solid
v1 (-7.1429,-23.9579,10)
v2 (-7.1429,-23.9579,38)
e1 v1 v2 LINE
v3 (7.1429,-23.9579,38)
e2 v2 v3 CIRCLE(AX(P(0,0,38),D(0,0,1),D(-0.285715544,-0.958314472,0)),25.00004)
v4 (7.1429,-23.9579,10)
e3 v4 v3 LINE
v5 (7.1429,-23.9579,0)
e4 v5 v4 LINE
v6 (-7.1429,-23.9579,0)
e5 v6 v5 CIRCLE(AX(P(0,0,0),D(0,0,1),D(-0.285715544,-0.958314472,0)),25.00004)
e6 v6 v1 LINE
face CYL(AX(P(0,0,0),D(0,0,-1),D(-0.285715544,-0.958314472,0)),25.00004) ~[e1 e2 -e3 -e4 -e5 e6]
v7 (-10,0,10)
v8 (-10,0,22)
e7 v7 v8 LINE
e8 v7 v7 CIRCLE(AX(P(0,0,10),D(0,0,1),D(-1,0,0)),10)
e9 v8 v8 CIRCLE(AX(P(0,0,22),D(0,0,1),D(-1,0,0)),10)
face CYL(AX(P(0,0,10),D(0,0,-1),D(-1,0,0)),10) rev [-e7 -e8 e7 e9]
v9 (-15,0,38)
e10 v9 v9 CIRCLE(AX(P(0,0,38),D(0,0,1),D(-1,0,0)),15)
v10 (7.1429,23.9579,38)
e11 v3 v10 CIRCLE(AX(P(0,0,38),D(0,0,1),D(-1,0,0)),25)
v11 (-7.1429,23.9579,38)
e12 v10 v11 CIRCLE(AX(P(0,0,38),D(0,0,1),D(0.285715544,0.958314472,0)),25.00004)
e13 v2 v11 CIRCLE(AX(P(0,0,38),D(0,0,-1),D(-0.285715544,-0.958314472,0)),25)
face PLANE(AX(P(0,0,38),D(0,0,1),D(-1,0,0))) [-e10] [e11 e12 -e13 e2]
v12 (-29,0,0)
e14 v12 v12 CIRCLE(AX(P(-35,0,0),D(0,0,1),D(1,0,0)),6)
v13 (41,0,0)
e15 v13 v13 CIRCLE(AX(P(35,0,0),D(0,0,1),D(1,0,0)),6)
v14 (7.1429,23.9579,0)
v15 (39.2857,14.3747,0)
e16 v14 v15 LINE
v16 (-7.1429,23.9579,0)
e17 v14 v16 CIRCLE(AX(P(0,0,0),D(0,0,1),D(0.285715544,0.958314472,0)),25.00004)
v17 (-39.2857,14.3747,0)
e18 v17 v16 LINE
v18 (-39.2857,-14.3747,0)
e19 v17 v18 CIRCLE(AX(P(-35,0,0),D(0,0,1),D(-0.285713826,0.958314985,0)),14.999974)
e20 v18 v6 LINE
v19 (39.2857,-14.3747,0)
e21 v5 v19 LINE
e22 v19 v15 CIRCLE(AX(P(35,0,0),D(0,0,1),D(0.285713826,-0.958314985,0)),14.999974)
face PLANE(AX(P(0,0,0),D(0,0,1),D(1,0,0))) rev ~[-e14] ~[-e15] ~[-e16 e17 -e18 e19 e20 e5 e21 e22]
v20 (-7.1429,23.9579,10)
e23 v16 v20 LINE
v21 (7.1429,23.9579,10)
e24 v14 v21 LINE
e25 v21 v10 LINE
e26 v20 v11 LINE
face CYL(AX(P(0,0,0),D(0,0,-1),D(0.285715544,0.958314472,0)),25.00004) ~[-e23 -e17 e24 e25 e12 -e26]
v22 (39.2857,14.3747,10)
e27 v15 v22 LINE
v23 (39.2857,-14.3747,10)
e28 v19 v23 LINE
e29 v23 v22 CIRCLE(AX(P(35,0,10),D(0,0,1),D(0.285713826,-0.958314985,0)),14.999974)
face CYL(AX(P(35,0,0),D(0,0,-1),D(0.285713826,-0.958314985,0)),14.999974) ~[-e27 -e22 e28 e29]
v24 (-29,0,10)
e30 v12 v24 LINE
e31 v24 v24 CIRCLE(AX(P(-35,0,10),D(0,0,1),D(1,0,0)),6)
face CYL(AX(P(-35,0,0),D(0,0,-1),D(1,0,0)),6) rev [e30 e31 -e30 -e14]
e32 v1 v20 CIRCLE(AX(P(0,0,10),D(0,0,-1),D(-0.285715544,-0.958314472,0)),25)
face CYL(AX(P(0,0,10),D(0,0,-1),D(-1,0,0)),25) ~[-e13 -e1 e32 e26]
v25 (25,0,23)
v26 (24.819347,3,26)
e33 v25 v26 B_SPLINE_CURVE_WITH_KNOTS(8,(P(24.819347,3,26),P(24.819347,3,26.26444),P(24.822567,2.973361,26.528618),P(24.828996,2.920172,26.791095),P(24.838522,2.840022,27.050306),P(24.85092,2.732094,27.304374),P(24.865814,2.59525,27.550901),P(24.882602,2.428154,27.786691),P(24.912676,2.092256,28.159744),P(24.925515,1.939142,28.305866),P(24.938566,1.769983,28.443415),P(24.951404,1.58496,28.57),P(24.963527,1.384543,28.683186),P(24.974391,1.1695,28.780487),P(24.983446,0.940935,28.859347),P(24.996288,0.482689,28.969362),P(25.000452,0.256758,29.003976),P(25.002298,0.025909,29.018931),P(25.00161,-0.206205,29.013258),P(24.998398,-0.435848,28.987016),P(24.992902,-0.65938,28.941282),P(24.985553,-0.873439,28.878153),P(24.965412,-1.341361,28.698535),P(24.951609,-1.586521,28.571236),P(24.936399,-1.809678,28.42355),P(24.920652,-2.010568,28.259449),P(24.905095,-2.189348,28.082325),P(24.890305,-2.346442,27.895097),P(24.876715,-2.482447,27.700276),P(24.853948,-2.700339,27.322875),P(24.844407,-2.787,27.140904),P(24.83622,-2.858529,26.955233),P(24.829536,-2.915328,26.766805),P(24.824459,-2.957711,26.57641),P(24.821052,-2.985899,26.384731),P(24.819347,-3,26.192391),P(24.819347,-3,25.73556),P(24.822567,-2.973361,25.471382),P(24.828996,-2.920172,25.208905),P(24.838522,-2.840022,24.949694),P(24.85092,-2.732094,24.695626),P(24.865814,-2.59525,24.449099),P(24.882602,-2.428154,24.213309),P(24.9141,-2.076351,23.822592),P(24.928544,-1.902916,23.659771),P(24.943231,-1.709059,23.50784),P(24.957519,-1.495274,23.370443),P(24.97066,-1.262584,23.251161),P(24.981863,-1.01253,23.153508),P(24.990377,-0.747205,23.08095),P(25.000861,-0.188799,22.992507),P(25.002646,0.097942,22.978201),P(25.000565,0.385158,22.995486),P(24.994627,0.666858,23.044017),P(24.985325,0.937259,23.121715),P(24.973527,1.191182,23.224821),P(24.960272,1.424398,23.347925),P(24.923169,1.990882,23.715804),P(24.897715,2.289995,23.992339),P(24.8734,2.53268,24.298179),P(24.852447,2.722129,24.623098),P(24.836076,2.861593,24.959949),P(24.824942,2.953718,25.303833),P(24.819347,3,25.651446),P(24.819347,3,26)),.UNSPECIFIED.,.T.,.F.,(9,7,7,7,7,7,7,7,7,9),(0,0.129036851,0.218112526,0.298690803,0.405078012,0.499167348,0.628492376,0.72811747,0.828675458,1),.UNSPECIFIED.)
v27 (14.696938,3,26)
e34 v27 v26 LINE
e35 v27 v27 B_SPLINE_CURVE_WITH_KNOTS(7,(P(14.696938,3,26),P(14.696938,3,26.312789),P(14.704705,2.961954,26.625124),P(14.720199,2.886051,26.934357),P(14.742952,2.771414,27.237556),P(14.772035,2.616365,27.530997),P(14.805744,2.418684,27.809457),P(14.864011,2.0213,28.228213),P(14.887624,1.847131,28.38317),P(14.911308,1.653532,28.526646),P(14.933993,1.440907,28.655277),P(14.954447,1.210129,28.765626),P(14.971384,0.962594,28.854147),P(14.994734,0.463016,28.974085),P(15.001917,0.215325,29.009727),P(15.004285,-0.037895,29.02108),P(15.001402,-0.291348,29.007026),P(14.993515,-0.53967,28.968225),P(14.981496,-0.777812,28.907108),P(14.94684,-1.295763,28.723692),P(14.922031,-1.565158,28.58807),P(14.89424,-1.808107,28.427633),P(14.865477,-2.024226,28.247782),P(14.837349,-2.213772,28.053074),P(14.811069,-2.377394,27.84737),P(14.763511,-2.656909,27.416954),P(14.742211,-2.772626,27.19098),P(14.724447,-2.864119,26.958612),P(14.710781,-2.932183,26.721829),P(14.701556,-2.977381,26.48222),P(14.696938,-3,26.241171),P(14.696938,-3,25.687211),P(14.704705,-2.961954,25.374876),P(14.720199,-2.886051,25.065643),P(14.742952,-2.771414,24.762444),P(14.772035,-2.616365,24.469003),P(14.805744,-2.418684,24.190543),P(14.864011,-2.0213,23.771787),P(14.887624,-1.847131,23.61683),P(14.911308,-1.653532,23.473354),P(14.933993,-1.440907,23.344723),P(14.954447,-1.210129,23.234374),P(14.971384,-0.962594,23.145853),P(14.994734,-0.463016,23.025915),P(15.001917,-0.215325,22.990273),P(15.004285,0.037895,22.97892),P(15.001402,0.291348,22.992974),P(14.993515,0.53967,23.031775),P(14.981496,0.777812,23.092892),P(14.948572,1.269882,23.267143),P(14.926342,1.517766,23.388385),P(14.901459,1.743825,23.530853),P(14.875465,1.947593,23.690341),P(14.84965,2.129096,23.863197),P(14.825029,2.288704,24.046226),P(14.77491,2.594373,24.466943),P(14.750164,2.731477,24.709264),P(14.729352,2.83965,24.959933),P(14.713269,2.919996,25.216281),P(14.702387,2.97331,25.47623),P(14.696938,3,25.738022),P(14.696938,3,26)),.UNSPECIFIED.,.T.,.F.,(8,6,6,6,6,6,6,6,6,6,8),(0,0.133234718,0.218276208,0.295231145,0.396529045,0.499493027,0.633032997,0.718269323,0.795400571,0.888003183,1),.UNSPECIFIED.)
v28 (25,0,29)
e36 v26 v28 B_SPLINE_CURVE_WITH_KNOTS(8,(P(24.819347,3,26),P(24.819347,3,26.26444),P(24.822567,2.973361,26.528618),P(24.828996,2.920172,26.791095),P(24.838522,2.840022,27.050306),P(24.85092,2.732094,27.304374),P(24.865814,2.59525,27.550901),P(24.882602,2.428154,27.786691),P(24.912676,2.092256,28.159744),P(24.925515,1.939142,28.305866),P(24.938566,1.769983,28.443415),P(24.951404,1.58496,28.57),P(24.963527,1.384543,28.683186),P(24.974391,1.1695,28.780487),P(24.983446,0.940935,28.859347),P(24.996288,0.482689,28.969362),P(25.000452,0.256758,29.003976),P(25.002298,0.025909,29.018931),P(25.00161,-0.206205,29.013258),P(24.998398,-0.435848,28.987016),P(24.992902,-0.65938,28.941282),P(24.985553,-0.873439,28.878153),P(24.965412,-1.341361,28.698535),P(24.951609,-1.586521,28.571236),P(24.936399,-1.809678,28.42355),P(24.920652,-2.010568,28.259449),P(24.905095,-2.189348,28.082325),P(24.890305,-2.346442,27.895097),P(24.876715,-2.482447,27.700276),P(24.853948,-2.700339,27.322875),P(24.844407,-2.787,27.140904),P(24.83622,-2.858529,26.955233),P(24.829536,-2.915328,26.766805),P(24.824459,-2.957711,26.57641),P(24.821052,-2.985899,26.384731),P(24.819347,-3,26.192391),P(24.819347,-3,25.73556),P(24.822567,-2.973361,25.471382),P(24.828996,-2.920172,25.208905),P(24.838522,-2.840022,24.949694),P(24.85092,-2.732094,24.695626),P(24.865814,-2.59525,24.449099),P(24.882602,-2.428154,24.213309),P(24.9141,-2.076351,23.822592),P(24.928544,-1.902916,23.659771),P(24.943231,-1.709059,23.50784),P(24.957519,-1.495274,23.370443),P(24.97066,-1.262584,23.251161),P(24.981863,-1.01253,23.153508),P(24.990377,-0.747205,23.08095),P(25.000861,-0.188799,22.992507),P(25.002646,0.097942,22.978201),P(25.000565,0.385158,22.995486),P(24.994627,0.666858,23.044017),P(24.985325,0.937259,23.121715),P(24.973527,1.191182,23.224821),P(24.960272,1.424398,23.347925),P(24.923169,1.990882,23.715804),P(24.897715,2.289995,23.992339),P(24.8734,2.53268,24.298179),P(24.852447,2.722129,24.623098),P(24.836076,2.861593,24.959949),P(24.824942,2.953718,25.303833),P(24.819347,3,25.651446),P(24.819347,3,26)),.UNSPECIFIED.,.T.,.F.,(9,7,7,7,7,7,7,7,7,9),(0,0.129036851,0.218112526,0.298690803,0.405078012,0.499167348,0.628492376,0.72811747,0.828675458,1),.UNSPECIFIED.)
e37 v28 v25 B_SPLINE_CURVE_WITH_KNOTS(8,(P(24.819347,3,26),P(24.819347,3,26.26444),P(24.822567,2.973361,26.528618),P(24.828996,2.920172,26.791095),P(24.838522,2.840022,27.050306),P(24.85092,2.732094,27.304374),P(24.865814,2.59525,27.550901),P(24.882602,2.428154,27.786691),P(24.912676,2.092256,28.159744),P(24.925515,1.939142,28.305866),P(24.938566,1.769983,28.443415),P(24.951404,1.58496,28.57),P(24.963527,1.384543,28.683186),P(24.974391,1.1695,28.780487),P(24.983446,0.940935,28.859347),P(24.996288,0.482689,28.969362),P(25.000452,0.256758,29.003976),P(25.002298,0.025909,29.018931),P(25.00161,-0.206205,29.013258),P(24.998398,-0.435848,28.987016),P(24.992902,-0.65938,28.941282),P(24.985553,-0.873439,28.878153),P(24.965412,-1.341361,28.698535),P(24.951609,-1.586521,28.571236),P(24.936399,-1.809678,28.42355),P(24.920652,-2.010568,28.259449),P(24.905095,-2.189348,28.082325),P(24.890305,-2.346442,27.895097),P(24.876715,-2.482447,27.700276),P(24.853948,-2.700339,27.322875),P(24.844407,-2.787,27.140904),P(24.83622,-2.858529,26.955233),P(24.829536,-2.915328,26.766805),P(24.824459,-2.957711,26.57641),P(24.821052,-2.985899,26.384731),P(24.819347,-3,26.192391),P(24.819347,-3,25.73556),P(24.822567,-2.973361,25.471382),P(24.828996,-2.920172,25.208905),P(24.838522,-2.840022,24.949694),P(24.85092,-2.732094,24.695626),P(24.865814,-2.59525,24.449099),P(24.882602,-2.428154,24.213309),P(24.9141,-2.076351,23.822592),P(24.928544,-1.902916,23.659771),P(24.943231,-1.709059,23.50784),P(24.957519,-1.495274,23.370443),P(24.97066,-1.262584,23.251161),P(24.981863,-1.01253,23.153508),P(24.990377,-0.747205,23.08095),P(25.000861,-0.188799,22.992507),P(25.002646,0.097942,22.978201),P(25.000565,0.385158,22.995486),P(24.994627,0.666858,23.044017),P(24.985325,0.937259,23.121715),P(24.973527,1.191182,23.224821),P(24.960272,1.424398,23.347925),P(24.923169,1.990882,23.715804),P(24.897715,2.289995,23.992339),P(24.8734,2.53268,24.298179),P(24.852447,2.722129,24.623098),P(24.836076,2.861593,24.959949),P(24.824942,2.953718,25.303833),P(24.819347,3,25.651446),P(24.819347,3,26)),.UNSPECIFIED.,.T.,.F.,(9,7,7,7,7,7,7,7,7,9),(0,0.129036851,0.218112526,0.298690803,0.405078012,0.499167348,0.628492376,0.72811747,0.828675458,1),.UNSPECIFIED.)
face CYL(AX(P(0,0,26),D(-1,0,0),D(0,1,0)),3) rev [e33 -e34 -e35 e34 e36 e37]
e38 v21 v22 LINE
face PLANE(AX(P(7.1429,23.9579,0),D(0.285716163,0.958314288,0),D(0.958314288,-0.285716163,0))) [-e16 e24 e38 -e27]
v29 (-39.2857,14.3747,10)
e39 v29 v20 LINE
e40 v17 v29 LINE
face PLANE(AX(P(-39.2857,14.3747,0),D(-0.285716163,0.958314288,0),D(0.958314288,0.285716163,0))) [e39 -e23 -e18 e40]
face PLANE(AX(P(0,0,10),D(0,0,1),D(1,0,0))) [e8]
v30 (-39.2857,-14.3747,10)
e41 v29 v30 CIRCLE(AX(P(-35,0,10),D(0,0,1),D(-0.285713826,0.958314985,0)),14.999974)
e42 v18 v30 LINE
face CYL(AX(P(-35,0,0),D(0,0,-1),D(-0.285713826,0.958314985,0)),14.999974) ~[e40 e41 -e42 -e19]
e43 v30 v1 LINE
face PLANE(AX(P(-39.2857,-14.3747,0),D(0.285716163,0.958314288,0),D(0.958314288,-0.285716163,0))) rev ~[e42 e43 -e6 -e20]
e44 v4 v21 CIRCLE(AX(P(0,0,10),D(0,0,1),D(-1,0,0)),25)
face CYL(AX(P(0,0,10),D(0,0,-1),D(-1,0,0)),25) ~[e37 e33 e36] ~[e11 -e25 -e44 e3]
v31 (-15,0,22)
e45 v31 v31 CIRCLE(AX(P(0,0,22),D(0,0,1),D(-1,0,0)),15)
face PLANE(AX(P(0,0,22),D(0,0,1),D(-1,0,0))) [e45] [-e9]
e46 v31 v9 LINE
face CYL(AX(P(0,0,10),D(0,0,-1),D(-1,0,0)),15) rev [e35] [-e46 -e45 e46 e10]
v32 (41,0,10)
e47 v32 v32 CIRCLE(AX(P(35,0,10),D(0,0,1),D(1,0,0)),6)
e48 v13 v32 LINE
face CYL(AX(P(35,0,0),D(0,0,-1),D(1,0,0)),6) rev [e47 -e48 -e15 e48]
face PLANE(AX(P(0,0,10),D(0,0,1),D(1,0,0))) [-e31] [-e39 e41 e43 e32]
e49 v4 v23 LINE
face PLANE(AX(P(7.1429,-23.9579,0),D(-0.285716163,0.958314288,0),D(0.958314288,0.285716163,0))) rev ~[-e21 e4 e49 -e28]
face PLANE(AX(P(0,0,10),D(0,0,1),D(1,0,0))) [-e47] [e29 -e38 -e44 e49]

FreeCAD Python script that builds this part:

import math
import FreeCAD as App
import Part
import Sketcher
Q = App.Units.Quantity

doc = App.newDocument("Part")
params = doc.addObject("Spreadsheet::Sheet", "Params")
for row, (alias, value) in enumerate([
    ("sketch1_diameter", "12 mm"),
    ("sketch1_radius", "15 mm"),
    ("sketch1_radius2", "25 mm"),
    ("pad1_length", "10 mm"),
    ("sketch2_diameter", "50 mm"),
    ("sketch2_diameter2", "30 mm"),
    ("pad2_length", "28 mm"),
    ("sketch3_diameter", "20 mm"),
    ("sketch3_diameter2", "30 mm"),
    ("pad3_length", "12 mm"),
    ("sketch4_diameter", "6 mm"),
    ("pocket1_length", "25 mm"),
], start=1):
    params.set(f"A{row}", alias)
    params.set(f"B{row}", "=" + value)
    params.setAlias(f"B{row}", alias)

body = doc.addObject("PartDesign::Body", "Body")

sketch1 = body.newObject("Sketcher::SketchObject", "Sketch")
sketch1.AttachmentSupport = (doc.getObject("XY_Plane"), [""])
sketch1.MapMode = "FlatFace"
sketch1.addGeometry([
    Part.LineSegment(App.Vector(-7, 24, 0), App.Vector(-39, 14, 0)),
    Part.ArcOfCircle(Part.Circle(App.Vector(-35, 0, 0), App.Vector(0, 0, 1), 15), math.radians(107), math.radians(253)),
    Part.LineSegment(App.Vector(-39, -14, 0), App.Vector(-7, -24, 0)),
    Part.ArcOfCircle(Part.Circle(App.Vector(0, 0, 0), App.Vector(0, 0, 1), 25), math.radians(-107), math.radians(-73)),
    Part.LineSegment(App.Vector(7, -24, 0), App.Vector(39, -14, 0)),
    Part.ArcOfCircle(Part.Circle(App.Vector(35, 0, 0), App.Vector(0, 0, 1), 15), math.radians(-73), math.radians(73)),
    Part.LineSegment(App.Vector(39, 14, 0), App.Vector(7, 24, 0)),
    Part.ArcOfCircle(Part.Circle(App.Vector(0, 0, 0), App.Vector(0, 0, 1), 25), math.radians(73), math.radians(107)),
    Part.Circle(App.Vector(-35, 0, 0), App.Vector(0, 0, 1), 6),
    Part.Circle(App.Vector(35, 0, 0), App.Vector(0, 0, 1), 6),
], False)
sketch1.addConstraint([
    Sketcher.Constraint("Tangent", 0, 2, 1, 1),
    Sketcher.Constraint("Tangent", 1, 2, 2, 1),
    Sketcher.Constraint("Tangent", 2, 2, 3, 1),
    Sketcher.Constraint("Tangent", 3, 2, 4, 1),
    Sketcher.Constraint("Tangent", 4, 2, 5, 1),
    Sketcher.Constraint("Tangent", 5, 2, 6, 1),
    Sketcher.Constraint("Tangent", 6, 2, 7, 1),
    Sketcher.Constraint("Tangent", 7, 2, 0, 1),
    Sketcher.Constraint("Coincident", 3, 3, -1, 1),
    Sketcher.Constraint("Coincident", 7, 3, -1, 1),
    Sketcher.Constraint("Coincident", 8, 3, 1, 3),
    Sketcher.Constraint("Coincident", 9, 3, 5, 3),
    Sketcher.Constraint("Equal", 1, 5),
    Sketcher.Constraint("Equal", 3, 7),
    Sketcher.Constraint("Equal", 8, 9),
    Sketcher.Constraint("Symmetric", 1, 3, 5, 3, -1, 1),
    Sketcher.Constraint("PointOnObject", 1, 3, -1),
    Sketcher.Constraint("Diameter", 8, Q("12 mm")),
    Sketcher.Constraint("Radius", 1, Q("15 mm")),
    Sketcher.Constraint("Radius", 3, Q("25 mm")),
    Sketcher.Constraint("DistanceX", 1, 3, -1, 1, Q("35 mm")),
])
sketch1.setExpression("Constraints[17]", "Params.sketch1_diameter")
sketch1.setExpression("Constraints[18]", "Params.sketch1_radius")
sketch1.setExpression("Constraints[19]", "Params.sketch1_radius2")
pad1 = body.newObject("PartDesign::Pad", "Pad")
pad1.Profile = sketch1
pad1.setExpression("Length", "Params.pad1_length")

sketch2 = body.newObject("Sketcher::SketchObject", "Sketch001")
sketch2.AttachmentSupport = (doc.getObject("XY_Plane"), [""])
sketch2.MapMode = "FlatFace"
sketch2.AttachmentOffset = App.Placement(App.Vector(0, 0, 10), App.Rotation())
sketch2.addGeometry([
    Part.Circle(App.Vector(0, 0, 0), App.Vector(0, 0, 1), 25),
    Part.Circle(App.Vector(0, 0, 0), App.Vector(0, 0, 1), 15),
], False)
sketch2.addConstraint([
    Sketcher.Constraint("Coincident", 0, 3, -1, 1),
    Sketcher.Constraint("Coincident", 1, 3, -1, 1),
    Sketcher.Constraint("Diameter", 0, Q("50 mm")),
    Sketcher.Constraint("Diameter", 1, Q("30 mm")),
])
sketch2.setExpression("Constraints[2]", "Params.sketch2_diameter")
sketch2.setExpression("Constraints[3]", "Params.sketch2_diameter2")
pad2 = body.newObject("PartDesign::Pad", "Pad001")
pad2.Profile = sketch2
pad2.setExpression("Length", "Params.pad2_length")

sketch3 = body.newObject("Sketcher::SketchObject", "Sketch002")
sketch3.AttachmentSupport = (doc.getObject("XY_Plane"), [""])
sketch3.MapMode = "FlatFace"
sketch3.AttachmentOffset = App.Placement(App.Vector(0, 0, 10), App.Rotation())
sketch3.addGeometry([
    Part.Circle(App.Vector(0, 0, 0), App.Vector(0, 0, 1), 15),
    Part.Circle(App.Vector(0, 0, 0), App.Vector(0, 0, 1), 10),
], False)
sketch3.addConstraint([
    Sketcher.Constraint("Coincident", 0, 3, -1, 1),
    Sketcher.Constraint("Coincident", 1, 3, -1, 1),
    Sketcher.Constraint("Diameter", 1, Q("20 mm")),
    Sketcher.Constraint("Diameter", 0, Q("30 mm")),
])
sketch3.setExpression("Constraints[2]", "Params.sketch3_diameter")
sketch3.setExpression("Constraints[3]", "Params.sketch3_diameter2")
pad3 = body.newObject("PartDesign::Pad", "Pad002")
pad3.Profile = sketch3
pad3.setExpression("Length", "Params.pad3_length")

sketch4 = body.newObject("Sketcher::SketchObject", "Sketch003")
sketch4.AttachmentSupport = (doc.getObject("YZ_Plane"), [""])
sketch4.MapMode = "FlatFace"
sketch4.addGeometry(Part.Circle(App.Vector(0, 26, 0), App.Vector(0, 0, 1), 3), False)
sketch4.addConstraint([
    Sketcher.Constraint("PointOnObject", 0, 3, -2),
    Sketcher.Constraint("Diameter", 0, Q("6 mm")),
    Sketcher.Constraint("DistanceY", -1, 1, 0, 3, Q("26 mm")),
])
sketch4.setExpression("Constraints[1]", "Params.sketch4_diameter")
pocket1 = body.newObject("PartDesign::Pocket", "Pocket")
pocket1.Profile = sketch4
pocket1.setExpression("Length", "Params.pocket1_length")
pocket1.Reversed = True

doc.recompute()
